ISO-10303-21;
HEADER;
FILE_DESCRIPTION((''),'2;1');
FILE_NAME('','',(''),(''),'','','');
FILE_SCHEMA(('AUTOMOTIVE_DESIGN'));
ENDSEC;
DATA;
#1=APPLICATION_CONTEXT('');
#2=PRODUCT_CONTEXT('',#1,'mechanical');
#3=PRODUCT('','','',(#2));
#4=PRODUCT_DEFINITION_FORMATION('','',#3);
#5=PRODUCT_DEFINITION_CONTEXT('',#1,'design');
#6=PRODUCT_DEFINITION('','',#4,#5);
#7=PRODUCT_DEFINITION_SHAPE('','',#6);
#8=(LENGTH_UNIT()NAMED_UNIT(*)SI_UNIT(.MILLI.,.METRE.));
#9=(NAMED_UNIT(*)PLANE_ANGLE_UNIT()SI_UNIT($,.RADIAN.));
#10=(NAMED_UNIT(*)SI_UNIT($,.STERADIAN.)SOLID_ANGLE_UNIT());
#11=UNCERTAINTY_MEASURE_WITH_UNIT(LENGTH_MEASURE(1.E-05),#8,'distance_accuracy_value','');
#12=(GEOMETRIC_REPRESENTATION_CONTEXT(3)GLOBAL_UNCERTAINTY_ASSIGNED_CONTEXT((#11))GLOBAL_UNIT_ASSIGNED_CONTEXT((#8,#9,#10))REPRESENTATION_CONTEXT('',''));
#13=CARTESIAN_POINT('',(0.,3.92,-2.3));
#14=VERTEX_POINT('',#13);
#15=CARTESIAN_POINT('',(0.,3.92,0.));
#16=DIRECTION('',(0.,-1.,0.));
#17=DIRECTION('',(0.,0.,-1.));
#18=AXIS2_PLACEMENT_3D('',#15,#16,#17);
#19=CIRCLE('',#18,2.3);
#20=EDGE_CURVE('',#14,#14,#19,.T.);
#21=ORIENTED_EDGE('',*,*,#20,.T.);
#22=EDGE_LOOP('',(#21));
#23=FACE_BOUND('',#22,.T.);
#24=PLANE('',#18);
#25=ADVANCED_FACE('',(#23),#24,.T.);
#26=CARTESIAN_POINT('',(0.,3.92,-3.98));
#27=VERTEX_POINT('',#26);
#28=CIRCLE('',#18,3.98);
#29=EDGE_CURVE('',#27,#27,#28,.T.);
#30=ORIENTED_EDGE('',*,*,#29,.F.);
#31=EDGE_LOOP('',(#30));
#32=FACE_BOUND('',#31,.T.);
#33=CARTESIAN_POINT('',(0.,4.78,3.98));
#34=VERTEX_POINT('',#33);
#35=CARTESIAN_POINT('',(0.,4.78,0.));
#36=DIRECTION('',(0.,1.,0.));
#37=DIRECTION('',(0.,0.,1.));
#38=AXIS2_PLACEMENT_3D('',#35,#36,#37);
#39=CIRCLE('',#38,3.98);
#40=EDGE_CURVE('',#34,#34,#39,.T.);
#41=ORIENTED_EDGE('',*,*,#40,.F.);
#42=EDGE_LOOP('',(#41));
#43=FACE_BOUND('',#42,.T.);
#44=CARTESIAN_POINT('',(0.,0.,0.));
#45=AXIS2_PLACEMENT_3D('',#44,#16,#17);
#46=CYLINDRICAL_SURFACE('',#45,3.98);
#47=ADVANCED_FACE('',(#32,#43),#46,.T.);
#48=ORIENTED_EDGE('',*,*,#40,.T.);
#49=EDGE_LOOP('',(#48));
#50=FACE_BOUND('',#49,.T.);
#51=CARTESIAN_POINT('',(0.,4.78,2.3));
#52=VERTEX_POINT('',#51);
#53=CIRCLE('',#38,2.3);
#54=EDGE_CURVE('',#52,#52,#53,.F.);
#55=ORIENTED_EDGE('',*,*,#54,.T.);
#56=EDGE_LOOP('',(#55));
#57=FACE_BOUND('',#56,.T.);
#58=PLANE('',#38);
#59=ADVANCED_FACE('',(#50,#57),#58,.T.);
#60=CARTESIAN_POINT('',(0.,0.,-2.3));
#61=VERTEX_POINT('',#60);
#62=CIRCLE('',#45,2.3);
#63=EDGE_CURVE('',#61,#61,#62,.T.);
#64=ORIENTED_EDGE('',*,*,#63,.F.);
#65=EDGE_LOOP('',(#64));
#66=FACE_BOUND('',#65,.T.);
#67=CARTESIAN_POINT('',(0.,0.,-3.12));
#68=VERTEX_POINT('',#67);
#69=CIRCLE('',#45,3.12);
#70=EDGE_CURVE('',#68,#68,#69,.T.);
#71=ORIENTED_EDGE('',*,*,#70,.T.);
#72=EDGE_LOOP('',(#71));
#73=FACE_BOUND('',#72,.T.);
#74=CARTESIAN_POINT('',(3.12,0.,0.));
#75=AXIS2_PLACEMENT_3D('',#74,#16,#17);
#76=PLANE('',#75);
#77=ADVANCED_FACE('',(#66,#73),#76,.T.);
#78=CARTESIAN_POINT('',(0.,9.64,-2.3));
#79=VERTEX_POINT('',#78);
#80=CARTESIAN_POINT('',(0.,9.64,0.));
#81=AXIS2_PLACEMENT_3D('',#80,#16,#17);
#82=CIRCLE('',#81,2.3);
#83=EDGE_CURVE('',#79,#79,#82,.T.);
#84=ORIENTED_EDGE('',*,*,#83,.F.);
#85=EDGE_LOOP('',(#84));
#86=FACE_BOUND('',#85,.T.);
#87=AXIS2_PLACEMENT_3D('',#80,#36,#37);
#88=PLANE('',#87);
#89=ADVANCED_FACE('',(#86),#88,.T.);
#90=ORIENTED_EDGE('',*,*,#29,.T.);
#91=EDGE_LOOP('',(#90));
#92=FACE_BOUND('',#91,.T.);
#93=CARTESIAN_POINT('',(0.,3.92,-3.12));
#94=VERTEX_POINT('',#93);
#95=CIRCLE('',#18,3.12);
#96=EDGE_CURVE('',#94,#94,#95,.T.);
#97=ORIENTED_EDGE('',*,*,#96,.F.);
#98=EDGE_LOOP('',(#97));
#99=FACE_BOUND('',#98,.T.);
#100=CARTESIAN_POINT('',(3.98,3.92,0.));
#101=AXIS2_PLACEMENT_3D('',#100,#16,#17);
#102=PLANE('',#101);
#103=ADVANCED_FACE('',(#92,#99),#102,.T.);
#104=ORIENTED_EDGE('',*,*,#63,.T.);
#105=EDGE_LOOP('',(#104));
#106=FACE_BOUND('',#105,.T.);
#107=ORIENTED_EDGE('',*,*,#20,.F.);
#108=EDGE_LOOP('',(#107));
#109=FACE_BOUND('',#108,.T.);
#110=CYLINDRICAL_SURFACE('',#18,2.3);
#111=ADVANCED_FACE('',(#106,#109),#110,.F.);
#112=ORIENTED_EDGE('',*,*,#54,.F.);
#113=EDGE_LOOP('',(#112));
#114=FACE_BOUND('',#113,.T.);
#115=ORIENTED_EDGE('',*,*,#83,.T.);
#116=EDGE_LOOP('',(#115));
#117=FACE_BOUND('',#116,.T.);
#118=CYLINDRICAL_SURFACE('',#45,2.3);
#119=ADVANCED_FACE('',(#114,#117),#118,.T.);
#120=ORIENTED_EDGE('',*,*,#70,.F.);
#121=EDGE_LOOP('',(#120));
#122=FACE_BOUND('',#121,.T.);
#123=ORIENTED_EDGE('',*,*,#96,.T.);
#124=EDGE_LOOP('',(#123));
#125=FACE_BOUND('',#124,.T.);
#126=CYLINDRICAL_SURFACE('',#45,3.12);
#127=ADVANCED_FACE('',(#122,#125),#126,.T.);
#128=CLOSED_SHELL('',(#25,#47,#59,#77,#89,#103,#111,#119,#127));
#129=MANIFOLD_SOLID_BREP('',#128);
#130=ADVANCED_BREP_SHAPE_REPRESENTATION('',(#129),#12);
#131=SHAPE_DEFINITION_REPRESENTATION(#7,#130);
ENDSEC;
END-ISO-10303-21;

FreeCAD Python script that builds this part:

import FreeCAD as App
import Part
import Sketcher
Q = App.Units.Quantity


def add_polygon(sketch, points):
    """Adds a closed chain of lines whose ends are joined by coincident constraints."""
    first, n = sketch.GeometryCount, len(points)
    for a, b in zip(points, points[1:] + points[:1]):
        sketch.addGeometry(Part.LineSegment(App.Vector(*a, 0), App.Vector(*b, 0)), False)
    for i in range(n):
        sketch.addConstraint(Sketcher.Constraint("Coincident", first + i, 2, first + (i + 1) % n, 1))

doc = App.newDocument("Part")
body = doc.addObject("PartDesign::Body", "Body")

# Sketch on XY plane
sketch1 = body.newObject("Sketcher::SketchObject", "Sketch")
sketch1.AttachmentSupport = (doc.getObject("XY_Plane"), [""])
sketch1.MapMode = "FlatFace"
add_polygon(sketch1, [(0, 9.64), (0, 0), (3.12, 0), (3.12, 3.92), (3.98, 3.92), (3.98, 5.4), (2.3, 5.4), (2.3, 9.64)])  # lines 0-7
sketch1.addConstraint(Sketcher.Constraint("Vertical", 0))
sketch1.addConstraint(Sketcher.Constraint("Horizontal", 1))
sketch1.addConstraint(Sketcher.Constraint("Vertical", 2))
sketch1.addConstraint(Sketcher.Constraint("Horizontal", 3))
sketch1.addConstraint(Sketcher.Constraint("Vertical", 4))
sketch1.addConstraint(Sketcher.Constraint("Horizontal", 5))
sketch1.addConstraint(Sketcher.Constraint("Vertical", 6))
sketch1.addConstraint(Sketcher.Constraint("Horizontal", 7))
sketch1.addConstraint(Sketcher.Constraint("Coincident", 0, 2, -1, 1))
sketch1.addConstraint(Sketcher.Constraint("DistanceX", 7, 2, 7, 1, Q("2.3 mm")))
sketch1.addConstraint(Sketcher.Constraint("DistanceX", 1, 1, 1, 2, Q("3.12 mm")))
sketch1.addConstraint(Sketcher.Constraint("DistanceX", 3, 1, 3, 2, Q("0.86 mm")))
sketch1.addConstraint(Sketcher.Constraint("DistanceY", 0, 2, 0, 1, Q("9.64 mm")))
sketch1.addConstraint(Sketcher.Constraint("DistanceY", 2, 1, 2, 2, Q("3.92 mm")))
sketch1.addConstraint(Sketcher.Constraint("DistanceY", 4, 1, 4, 2, Q("1.48 mm")))
revolution = body.newObject("PartDesign::Revolution", "Revolution")
revolution.Profile = sketch1
revolution.ReferenceAxis = (sketch1, ["V_Axis"])
revolution.Angle = 360

# Sketch on XZ plane
sketch2 = body.newObject("Sketcher::SketchObject", "Sketch001")
sketch2.AttachmentSupport = (doc.getObject("XZ_Plane"), [""])
sketch2.MapMode = "FlatFace"
sketch2.addGeometry(Part.Circle(App.Vector(0, 0, 0), App.Vector(0, 0, 1), 2.3), False)
sketch2.addConstraint(Sketcher.Constraint("Coincident", 0, 3, -1, 1))
sketch2.addConstraint(Sketcher.Constraint("Diameter", 0, Q("4.6 mm")))
pocket1 = body.newObject("PartDesign::Pocket", "Pocket")
pocket1.Profile = sketch2
pocket1.Length = 3.92

# Sketch on XZ plane
sketch3 = body.newObject("Sketcher::SketchObject", "Sketch002")
sketch3.AttachmentSupport = (doc.getObject("XZ_Plane"), [""])
sketch3.MapMode = "FlatFace"
sketch3.AttachmentOffset = App.Placement(App.Vector(0, 0, -4.78), App.Rotation())
sketch3.addGeometry(Part.Circle(App.Vector(0, 0, 0), App.Vector(0, 0, 1), 3.98), False)
sketch3.addGeometry(Part.Circle(App.Vector(0, 0, 0), App.Vector(0, 0, 1), 2.3), False)
sketch3.addConstraint(Sketcher.Constraint("Coincident", 0, 3, -1, 1))
sketch3.addConstraint(Sketcher.Constraint("Coincident", 1, 3, -1, 1))
sketch3.addConstraint(Sketcher.Constraint("Diameter", 1, Q("4.6 mm")))
sketch3.addConstraint(Sketcher.Constraint("Diameter", 0, Q("7.96 mm")))
pocket2 = body.newObject("PartDesign::Pocket", "Pocket001")
pocket2.Profile = sketch3
pocket2.Length = 0.62

doc.recompute()
